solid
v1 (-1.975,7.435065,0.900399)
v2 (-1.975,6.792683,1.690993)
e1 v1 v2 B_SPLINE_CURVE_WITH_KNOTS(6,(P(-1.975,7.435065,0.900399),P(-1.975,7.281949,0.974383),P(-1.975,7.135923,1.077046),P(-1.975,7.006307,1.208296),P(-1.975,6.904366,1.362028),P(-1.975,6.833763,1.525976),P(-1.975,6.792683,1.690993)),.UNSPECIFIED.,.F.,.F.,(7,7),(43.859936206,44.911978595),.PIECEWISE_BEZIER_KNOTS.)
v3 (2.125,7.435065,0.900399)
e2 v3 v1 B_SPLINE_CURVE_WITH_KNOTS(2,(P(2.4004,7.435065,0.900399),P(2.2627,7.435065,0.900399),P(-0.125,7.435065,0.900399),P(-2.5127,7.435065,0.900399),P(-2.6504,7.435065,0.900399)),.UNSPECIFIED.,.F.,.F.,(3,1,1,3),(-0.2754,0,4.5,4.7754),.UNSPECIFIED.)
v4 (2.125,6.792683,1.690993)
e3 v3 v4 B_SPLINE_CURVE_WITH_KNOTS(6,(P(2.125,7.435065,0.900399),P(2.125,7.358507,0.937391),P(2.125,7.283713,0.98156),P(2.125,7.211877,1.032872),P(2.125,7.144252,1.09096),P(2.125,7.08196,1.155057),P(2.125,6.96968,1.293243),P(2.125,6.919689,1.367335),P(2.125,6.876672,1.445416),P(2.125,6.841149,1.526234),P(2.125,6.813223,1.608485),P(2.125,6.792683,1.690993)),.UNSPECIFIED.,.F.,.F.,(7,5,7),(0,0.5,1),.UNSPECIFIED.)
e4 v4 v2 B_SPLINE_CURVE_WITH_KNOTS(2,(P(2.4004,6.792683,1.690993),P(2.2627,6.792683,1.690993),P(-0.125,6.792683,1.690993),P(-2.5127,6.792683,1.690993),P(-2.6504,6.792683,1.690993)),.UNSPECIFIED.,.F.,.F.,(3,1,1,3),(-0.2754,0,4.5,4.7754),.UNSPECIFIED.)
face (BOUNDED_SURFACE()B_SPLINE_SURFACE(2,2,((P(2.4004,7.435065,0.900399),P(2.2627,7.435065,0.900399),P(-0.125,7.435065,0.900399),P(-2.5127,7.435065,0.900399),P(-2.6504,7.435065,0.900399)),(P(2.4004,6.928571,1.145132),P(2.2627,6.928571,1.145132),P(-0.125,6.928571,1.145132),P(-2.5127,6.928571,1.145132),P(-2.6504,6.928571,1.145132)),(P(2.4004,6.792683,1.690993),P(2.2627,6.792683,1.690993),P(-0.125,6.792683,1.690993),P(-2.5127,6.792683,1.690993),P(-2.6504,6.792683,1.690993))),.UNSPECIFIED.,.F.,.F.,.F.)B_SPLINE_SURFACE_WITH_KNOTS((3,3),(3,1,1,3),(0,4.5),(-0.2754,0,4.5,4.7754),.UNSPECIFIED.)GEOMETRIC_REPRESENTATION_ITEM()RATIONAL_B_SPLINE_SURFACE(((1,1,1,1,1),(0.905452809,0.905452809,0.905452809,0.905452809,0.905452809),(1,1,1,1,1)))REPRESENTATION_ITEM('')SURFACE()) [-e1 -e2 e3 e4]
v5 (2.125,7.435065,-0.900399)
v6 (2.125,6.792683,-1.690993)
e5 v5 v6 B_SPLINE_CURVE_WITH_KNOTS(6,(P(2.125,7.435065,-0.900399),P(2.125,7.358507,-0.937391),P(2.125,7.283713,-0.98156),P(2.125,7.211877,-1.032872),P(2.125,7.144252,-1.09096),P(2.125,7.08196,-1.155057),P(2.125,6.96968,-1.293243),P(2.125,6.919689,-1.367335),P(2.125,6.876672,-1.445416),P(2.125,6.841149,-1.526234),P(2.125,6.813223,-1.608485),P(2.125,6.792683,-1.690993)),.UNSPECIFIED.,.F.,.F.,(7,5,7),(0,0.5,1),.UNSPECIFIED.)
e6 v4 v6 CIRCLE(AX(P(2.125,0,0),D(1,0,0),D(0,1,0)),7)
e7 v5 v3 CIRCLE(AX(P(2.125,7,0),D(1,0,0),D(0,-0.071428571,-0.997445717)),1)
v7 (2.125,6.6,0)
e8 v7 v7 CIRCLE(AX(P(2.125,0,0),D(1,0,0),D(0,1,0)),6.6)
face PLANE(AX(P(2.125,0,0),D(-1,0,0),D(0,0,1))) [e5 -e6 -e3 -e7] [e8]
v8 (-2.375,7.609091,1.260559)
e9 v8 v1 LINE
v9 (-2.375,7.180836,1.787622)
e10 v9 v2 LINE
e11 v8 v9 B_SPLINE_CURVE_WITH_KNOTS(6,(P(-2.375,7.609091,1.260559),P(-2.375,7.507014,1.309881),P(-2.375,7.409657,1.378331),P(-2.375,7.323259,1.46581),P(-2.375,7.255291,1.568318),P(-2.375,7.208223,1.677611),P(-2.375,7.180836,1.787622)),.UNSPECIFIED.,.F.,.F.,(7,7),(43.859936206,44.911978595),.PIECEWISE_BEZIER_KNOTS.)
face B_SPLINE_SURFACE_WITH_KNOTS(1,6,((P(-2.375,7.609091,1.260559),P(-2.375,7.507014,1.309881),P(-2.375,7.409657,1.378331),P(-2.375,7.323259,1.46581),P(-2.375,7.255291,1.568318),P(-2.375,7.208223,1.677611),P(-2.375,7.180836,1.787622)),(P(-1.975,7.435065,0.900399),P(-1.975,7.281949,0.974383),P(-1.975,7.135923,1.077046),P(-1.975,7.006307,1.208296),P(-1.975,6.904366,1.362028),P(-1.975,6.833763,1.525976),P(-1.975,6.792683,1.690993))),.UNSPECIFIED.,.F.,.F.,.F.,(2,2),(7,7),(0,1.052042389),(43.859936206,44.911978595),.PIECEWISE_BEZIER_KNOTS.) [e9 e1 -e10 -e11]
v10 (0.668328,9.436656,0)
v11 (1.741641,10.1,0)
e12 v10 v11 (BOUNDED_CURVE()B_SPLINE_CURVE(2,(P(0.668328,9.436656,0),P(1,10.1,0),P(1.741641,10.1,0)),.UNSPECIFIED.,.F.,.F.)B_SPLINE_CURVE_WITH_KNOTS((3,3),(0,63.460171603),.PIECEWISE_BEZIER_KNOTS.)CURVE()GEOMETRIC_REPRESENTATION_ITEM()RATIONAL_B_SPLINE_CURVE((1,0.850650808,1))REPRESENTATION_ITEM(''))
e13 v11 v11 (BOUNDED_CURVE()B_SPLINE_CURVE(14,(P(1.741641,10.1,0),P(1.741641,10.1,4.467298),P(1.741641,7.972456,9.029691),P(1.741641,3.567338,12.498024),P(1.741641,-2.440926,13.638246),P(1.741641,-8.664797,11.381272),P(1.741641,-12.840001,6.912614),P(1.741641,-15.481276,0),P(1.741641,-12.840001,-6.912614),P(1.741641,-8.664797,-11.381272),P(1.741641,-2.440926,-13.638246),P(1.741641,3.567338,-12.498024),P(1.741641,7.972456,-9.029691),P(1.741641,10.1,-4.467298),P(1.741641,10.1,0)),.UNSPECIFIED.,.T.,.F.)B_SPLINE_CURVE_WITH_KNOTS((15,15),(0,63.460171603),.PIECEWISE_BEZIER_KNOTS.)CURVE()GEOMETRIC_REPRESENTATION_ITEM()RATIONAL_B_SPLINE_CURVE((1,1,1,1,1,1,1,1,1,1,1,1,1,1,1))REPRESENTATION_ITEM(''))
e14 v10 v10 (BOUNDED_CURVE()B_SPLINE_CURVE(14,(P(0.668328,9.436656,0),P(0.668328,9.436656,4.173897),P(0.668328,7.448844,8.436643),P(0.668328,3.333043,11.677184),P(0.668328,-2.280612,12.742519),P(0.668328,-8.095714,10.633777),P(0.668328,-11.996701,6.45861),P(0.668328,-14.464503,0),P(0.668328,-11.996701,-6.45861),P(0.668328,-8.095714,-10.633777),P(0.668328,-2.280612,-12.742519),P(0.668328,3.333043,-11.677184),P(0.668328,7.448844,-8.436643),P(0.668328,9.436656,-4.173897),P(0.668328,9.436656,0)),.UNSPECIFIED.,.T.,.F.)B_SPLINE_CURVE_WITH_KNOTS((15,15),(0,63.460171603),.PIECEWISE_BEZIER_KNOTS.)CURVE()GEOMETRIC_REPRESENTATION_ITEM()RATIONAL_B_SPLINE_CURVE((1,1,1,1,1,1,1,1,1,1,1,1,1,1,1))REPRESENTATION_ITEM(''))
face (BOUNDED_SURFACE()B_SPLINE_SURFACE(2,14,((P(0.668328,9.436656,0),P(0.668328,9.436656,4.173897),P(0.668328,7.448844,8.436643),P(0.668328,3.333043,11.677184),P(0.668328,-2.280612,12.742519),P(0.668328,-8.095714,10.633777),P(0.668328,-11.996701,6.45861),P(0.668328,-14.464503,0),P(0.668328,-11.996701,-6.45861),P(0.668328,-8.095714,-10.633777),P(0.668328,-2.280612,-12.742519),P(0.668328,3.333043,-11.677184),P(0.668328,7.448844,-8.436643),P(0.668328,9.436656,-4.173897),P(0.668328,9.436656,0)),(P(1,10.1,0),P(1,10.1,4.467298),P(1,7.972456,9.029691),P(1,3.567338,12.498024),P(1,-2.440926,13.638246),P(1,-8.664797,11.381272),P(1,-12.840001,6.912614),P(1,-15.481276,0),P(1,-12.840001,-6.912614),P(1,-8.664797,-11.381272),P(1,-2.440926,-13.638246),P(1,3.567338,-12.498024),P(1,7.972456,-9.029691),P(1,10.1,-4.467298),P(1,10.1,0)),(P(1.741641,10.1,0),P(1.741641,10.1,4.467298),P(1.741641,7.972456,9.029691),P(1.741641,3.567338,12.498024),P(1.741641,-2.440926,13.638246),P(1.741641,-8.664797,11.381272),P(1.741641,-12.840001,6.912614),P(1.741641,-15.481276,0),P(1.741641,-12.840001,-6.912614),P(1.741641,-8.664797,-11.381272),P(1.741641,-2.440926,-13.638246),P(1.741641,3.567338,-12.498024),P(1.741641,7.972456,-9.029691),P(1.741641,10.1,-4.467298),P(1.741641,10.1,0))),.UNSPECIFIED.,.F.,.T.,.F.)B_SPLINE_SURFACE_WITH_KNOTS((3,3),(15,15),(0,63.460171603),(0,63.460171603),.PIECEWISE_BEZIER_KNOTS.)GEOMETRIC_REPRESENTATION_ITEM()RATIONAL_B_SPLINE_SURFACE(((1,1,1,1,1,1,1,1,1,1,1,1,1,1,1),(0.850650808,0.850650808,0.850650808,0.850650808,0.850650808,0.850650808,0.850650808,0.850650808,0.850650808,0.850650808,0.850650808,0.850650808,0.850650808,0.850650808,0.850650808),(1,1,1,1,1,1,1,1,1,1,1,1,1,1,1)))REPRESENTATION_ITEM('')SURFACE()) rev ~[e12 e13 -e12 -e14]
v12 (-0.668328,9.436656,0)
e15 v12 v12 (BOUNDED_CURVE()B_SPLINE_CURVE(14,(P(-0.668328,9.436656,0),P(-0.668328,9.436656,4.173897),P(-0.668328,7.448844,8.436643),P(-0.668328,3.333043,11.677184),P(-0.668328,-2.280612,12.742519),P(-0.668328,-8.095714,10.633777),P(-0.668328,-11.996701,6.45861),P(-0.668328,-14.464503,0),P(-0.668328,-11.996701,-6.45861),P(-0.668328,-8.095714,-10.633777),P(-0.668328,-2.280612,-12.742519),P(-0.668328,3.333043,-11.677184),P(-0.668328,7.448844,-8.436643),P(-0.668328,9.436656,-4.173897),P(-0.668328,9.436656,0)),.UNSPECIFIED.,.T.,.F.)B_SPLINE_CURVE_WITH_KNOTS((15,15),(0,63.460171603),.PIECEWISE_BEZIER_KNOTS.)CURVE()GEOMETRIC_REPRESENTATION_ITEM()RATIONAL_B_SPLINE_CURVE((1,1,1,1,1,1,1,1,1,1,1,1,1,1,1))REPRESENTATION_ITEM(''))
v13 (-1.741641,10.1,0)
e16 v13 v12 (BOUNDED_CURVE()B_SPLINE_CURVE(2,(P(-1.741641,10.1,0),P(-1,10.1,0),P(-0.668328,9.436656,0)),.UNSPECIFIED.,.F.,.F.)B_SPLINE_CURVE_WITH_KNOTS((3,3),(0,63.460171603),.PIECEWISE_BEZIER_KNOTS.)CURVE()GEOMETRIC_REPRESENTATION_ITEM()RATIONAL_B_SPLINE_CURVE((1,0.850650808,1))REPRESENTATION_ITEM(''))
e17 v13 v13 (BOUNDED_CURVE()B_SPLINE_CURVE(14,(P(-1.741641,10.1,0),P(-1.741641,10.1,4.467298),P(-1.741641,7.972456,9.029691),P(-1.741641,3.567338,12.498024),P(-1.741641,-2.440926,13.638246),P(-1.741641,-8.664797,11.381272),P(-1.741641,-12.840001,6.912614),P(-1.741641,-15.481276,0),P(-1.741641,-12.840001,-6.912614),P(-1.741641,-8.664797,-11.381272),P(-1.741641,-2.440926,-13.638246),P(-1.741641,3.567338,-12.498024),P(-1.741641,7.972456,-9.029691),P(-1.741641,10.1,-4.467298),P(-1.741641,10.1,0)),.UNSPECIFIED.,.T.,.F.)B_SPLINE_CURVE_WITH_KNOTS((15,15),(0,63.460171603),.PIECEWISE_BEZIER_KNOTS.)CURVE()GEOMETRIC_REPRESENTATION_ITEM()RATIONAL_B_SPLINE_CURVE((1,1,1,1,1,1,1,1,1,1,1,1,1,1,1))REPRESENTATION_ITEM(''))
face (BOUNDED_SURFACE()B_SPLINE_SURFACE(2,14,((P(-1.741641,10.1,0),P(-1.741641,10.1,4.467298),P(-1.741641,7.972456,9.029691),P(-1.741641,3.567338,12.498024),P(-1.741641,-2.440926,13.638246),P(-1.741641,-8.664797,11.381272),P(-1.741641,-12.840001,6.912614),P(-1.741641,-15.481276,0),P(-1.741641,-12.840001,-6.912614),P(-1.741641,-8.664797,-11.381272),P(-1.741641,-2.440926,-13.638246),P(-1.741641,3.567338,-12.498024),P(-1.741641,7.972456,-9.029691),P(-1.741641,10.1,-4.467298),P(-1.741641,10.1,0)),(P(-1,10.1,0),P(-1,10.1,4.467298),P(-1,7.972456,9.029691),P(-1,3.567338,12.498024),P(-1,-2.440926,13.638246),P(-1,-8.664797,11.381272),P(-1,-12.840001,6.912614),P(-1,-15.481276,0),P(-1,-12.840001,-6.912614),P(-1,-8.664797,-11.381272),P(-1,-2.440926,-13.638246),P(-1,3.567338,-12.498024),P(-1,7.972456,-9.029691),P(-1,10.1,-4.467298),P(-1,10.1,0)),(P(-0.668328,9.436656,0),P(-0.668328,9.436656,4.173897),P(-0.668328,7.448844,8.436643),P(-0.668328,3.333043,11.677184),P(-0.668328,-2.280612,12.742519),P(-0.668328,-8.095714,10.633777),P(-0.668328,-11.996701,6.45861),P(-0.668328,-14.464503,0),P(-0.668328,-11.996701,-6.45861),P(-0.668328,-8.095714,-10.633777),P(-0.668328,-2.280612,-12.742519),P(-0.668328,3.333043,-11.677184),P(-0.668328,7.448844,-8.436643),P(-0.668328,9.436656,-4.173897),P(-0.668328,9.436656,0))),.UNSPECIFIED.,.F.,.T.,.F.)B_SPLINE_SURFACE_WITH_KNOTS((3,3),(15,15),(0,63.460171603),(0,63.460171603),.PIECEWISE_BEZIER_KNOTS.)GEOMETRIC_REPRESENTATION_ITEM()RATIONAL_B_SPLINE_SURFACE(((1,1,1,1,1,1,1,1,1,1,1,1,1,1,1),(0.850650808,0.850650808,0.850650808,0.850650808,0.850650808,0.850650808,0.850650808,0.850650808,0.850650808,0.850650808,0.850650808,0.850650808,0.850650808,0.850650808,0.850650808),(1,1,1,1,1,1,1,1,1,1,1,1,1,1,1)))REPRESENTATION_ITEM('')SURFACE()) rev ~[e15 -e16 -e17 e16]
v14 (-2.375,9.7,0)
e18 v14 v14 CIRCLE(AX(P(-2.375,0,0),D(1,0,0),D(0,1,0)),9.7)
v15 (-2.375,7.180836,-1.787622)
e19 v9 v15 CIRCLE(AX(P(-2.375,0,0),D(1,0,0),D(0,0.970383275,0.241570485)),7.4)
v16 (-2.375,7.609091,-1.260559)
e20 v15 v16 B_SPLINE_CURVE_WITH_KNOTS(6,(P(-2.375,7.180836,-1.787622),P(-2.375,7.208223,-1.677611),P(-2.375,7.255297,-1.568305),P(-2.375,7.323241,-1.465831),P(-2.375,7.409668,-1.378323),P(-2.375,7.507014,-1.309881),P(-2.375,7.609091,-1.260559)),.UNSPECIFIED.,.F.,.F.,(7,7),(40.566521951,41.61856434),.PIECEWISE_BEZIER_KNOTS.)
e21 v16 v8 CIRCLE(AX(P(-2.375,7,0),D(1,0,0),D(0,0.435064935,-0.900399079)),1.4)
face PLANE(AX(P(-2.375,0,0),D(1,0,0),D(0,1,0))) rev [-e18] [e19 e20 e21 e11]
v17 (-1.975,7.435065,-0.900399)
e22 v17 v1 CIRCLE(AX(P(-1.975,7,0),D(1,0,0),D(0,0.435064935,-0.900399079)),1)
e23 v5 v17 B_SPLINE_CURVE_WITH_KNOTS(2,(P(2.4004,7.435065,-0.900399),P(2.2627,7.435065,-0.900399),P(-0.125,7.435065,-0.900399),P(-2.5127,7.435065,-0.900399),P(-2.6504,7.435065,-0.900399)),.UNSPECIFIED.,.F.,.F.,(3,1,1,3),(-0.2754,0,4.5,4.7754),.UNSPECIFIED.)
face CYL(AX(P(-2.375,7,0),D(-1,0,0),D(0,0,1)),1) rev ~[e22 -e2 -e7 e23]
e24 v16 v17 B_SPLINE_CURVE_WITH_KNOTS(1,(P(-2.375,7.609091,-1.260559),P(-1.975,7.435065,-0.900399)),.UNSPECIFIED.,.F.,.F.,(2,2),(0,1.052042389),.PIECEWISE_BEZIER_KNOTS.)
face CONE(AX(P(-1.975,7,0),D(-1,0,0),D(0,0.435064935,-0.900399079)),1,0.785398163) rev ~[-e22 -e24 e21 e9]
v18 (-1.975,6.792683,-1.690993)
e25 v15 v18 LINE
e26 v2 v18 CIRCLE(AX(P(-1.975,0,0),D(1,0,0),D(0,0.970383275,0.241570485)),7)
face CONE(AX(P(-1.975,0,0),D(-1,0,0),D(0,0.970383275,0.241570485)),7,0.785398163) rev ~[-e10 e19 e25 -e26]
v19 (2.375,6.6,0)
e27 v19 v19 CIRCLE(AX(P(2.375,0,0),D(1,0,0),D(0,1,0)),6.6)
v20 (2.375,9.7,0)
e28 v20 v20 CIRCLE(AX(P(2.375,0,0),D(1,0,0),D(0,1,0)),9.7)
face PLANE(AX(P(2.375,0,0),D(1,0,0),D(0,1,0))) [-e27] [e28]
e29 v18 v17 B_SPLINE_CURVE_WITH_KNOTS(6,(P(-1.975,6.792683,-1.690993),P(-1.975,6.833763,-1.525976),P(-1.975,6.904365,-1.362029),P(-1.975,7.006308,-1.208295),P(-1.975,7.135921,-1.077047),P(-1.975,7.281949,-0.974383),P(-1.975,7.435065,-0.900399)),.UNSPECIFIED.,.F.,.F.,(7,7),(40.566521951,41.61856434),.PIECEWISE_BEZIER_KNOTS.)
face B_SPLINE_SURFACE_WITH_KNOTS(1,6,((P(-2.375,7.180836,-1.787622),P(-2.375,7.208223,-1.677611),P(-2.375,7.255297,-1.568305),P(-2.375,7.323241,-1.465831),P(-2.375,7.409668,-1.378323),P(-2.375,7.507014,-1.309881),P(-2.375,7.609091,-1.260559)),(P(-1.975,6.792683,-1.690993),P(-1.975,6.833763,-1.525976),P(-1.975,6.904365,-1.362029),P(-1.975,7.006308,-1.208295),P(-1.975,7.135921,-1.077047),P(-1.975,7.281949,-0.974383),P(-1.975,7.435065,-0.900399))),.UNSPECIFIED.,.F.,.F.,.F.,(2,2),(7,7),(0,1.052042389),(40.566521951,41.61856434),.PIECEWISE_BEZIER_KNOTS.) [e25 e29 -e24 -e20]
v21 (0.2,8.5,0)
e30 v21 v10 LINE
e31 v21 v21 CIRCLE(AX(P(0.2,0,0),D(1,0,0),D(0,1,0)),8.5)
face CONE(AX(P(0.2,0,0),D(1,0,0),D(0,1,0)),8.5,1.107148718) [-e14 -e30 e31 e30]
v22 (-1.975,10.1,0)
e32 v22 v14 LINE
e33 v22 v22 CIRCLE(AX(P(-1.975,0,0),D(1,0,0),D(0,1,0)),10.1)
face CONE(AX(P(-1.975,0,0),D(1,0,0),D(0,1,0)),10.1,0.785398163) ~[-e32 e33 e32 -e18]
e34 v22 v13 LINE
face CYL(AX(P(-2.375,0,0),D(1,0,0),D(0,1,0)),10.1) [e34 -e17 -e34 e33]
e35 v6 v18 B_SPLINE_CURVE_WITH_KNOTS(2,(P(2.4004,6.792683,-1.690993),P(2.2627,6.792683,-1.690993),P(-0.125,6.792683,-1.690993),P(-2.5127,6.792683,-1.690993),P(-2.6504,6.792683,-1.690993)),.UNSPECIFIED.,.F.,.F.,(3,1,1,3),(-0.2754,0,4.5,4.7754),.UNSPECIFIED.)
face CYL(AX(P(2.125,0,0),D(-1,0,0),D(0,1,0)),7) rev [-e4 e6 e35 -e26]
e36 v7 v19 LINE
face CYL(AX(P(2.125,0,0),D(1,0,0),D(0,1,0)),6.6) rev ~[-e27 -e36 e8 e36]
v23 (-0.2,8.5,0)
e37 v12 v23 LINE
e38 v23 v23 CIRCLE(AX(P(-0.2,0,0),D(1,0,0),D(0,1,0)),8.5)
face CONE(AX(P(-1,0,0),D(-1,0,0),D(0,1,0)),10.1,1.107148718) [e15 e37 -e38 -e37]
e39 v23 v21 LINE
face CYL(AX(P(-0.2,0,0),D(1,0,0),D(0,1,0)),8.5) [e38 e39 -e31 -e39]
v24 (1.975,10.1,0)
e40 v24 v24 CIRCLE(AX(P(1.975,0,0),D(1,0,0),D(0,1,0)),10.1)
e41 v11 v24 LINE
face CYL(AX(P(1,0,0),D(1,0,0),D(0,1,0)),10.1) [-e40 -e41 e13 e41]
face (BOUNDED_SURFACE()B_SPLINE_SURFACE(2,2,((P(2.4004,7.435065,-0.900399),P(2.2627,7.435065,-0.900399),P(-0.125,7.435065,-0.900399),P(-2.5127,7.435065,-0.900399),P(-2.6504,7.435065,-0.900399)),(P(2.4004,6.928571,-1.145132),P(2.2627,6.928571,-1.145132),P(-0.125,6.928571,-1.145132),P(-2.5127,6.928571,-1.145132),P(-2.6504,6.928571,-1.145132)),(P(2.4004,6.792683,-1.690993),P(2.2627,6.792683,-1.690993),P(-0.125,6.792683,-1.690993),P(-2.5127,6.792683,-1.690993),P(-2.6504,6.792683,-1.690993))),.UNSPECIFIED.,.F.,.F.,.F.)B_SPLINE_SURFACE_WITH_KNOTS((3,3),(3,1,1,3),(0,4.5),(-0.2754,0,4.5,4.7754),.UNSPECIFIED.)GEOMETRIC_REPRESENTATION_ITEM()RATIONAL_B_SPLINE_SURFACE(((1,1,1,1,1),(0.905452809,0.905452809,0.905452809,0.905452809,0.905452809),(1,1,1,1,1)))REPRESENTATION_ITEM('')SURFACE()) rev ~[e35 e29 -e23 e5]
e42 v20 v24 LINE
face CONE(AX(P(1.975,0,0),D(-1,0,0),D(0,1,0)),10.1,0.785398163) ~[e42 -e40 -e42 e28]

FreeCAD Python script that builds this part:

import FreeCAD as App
import Part
import Sketcher
Q = App.Units.Quantity


def edges_at(feature, points):
    """Names of the edges that pass closest to the given points."""
    edges = feature.Shape.Edges
    near = lambda p: min(range(len(edges)), key=lambda i: edges[i].distToShape(Part.Vertex(*p))[0])
    return sorted({f"Edge{near(p) + 1}" for p in points})

doc = App.newDocument("Part")
params = doc.addObject("Spreadsheet::Sheet", "Params")
for row, (alias, value) in enumerate([
    ("sketch1_width", "4.5 mm"),
    ("sketch1_width2", "0.4 mm"),
    ("sketch1_height", "3.5 mm"),
    ("sketch1_width3", "0.25 mm"),
    ("revolution_angle", "360 deg"),
    ("sketch2_diameter", "2 mm"),
    ("pocket1_length", "4.5 mm"),
    ("fillet_radius", "1.2 mm"),
    ("chamfer_size", "0.4 mm"),
], start=1):
    params.set(f"A{row}", alias)
    params.set(f"B{row}", "=" + value)
    params.setAlias(f"B{row}", alias)

body = doc.addObject("PartDesign::Body", "Body")

sketch1 = doc.addObject("Sketcher::SketchObject", "Sketch")
body.addObject(sketch1)
sketch1.AttachmentSupport = (doc.XY_Plane, [""])
sketch1.MapMode = "FlatFace"
sketch1.addGeometry([
    Part.LineSegment(App.Vector(-1, 10.1, 0), App.Vector(-2.38, 10.1, 0)),
    Part.LineSegment(App.Vector(-2.38, 10.1, 0), App.Vector(-2.38, 7, 0)),
    Part.LineSegment(App.Vector(-2.38, 7, 0), App.Vector(2.12, 7, 0)),
    Part.LineSegment(App.Vector(2.12, 7, 0), App.Vector(2.12, 6.6, 0)),
    Part.LineSegment(App.Vector(2.12, 6.6, 0), App.Vector(2.38, 6.6, 0)),
    Part.LineSegment(App.Vector(2.38, 6.6, 0), App.Vector(2.38, 10.1, 0)),
    Part.LineSegment(App.Vector(2.38, 10.1, 0), App.Vector(1, 10.1, 0)),
    Part.LineSegment(App.Vector(1, 10.1, 0), App.Vector(0.2, 8.5, 0)),
    Part.LineSegment(App.Vector(0.2, 8.5, 0), App.Vector(-0.2, 8.5, 0)),
    Part.LineSegment(App.Vector(-0.2, 8.5, 0), App.Vector(-1, 10.1, 0)),
], False)
sketch1.addConstraint([
    Sketcher.Constraint("Coincident", 0, 2, 1, 1),
    Sketcher.Constraint("Coincident", 1, 2, 2, 1),
    Sketcher.Constraint("Coincident", 2, 2, 3, 1),
    Sketcher.Constraint("Coincident", 3, 2, 4, 1),
    Sketcher.Constraint("Coincident", 4, 2, 5, 1),
    Sketcher.Constraint("Coincident", 5, 2, 6, 1),
    Sketcher.Constraint("Coincident", 6, 2, 7, 1),
    Sketcher.Constraint("Coincident", 7, 2, 8, 1),
    Sketcher.Constraint("Coincident", 8, 2, 9, 1),
    Sketcher.Constraint("Coincident", 9, 2, 0, 1),
    Sketcher.Constraint("Horizontal", 0),
    Sketcher.Constraint("Vertical", 1),
    Sketcher.Constraint("Horizontal", 2),
    Sketcher.Constraint("Vertical", 3),
    Sketcher.Constraint("Horizontal", 4),
    Sketcher.Constraint("Vertical", 5),
    Sketcher.Constraint("Horizontal", 6),
    Sketcher.Constraint("Horizontal", 8),
    Sketcher.Constraint("Symmetric", 0, 2, 5, 2, -2),
    Sketcher.Constraint("Equal", 0, 6),
    Sketcher.Constraint("Equal", 8, 3),
    Sketcher.Constraint("Equal", 7, 9),
    Sketcher.Constraint("DistanceX", 2, 1, 2, 2, Q("4.5 mm")),
    Sketcher.Constraint("DistanceX", 8, 2, 8, 1, Q("0.4 mm")),
    Sketcher.Constraint("DistanceY", 5, 1, 5, 2, Q("3.5 mm")),
    Sketcher.Constraint("DistanceY", -1, 1, 1, 2, Q("7 mm")),
    Sketcher.Constraint("DistanceX", 9, 2, 6, 2, Q("2 mm")),
    Sketcher.Constraint("DistanceX", 4, 1, 4, 2, Q("0.25 mm")),
    Sketcher.Constraint("DistanceY", 2, 2, 7, 2, Q("1.5 mm")),
])
sketch1.setExpression("Constraints[22]", "Params.sketch1_width")
sketch1.setExpression("Constraints[23]", "Params.sketch1_width2")
sketch1.setExpression("Constraints[24]", "Params.sketch1_height")
sketch1.setExpression("Constraints[27]", "Params.sketch1_width3")
revolution = doc.addObject("PartDesign::Revolution", "Revolution")
body.addObject(revolution)
revolution.Profile = sketch1
revolution.ReferenceAxis = (sketch1, ["H_Axis"])
revolution.setExpression("Angle", "Params.revolution_angle")

sketch2 = doc.addObject("Sketcher::SketchObject", "Sketch001")
body.addObject(sketch2)
sketch2.AttachmentSupport = (doc.YZ_Plane, [""])
sketch2.MapMode = "FlatFace"
sketch2.AttachmentOffset = App.Placement(App.Vector(0, 0, -2.375), App.Rotation())
sketch2.addGeometry(Part.Circle(App.Vector(7, 0, 0), App.Vector(0, 0, 1), 1), False)
sketch2.addConstraint([
    Sketcher.Constraint("PointOnObject", 0, 3, -1),
    Sketcher.Constraint("Diameter", 0, Q("2 mm")),
    Sketcher.Constraint("DistanceX", -1, 1, 0, 3, Q("7 mm")),
])
sketch2.setExpression("Constraints[1]", "Params.sketch2_diameter")
pocket1 = doc.addObject("PartDesign::Pocket", "Pocket")
body.addObject(pocket1)
pocket1.Profile = sketch2
pocket1.setExpression("Length", "Params.pocket1_length")
pocket1.Reversed = True
doc.recompute()

fillet = doc.addObject("PartDesign::Fillet", "Fillet")
body.addObject(fillet)
fillet.Base = (pocket1, edges_at(pocket1, [
    (-1, -10.1, 0),
    (1, -10.1, 0),
    (-0.125, 6.929, -0.997),
    (-0.125, 6.929, 0.997),
]))
fillet.setExpression("Radius", "Params.fillet_radius")
doc.recompute()

chamfer = doc.addObject("PartDesign::Chamfer", "Chamfer")
body.addObject(chamfer)
chamfer.Base = (fillet, edges_at(fillet, [
    (2.375, -10.1, 0),
    (-2.375, -10.1, 0),
    (-2.375, -7, 0),
    (-2.375, 7.026, 1.224),
    (-2.375, 7.026, -1.224),
    (-2.375, 8, 0),
]))
chamfer.setExpression("Size", "Params.chamfer_size")

doc.recompute()
